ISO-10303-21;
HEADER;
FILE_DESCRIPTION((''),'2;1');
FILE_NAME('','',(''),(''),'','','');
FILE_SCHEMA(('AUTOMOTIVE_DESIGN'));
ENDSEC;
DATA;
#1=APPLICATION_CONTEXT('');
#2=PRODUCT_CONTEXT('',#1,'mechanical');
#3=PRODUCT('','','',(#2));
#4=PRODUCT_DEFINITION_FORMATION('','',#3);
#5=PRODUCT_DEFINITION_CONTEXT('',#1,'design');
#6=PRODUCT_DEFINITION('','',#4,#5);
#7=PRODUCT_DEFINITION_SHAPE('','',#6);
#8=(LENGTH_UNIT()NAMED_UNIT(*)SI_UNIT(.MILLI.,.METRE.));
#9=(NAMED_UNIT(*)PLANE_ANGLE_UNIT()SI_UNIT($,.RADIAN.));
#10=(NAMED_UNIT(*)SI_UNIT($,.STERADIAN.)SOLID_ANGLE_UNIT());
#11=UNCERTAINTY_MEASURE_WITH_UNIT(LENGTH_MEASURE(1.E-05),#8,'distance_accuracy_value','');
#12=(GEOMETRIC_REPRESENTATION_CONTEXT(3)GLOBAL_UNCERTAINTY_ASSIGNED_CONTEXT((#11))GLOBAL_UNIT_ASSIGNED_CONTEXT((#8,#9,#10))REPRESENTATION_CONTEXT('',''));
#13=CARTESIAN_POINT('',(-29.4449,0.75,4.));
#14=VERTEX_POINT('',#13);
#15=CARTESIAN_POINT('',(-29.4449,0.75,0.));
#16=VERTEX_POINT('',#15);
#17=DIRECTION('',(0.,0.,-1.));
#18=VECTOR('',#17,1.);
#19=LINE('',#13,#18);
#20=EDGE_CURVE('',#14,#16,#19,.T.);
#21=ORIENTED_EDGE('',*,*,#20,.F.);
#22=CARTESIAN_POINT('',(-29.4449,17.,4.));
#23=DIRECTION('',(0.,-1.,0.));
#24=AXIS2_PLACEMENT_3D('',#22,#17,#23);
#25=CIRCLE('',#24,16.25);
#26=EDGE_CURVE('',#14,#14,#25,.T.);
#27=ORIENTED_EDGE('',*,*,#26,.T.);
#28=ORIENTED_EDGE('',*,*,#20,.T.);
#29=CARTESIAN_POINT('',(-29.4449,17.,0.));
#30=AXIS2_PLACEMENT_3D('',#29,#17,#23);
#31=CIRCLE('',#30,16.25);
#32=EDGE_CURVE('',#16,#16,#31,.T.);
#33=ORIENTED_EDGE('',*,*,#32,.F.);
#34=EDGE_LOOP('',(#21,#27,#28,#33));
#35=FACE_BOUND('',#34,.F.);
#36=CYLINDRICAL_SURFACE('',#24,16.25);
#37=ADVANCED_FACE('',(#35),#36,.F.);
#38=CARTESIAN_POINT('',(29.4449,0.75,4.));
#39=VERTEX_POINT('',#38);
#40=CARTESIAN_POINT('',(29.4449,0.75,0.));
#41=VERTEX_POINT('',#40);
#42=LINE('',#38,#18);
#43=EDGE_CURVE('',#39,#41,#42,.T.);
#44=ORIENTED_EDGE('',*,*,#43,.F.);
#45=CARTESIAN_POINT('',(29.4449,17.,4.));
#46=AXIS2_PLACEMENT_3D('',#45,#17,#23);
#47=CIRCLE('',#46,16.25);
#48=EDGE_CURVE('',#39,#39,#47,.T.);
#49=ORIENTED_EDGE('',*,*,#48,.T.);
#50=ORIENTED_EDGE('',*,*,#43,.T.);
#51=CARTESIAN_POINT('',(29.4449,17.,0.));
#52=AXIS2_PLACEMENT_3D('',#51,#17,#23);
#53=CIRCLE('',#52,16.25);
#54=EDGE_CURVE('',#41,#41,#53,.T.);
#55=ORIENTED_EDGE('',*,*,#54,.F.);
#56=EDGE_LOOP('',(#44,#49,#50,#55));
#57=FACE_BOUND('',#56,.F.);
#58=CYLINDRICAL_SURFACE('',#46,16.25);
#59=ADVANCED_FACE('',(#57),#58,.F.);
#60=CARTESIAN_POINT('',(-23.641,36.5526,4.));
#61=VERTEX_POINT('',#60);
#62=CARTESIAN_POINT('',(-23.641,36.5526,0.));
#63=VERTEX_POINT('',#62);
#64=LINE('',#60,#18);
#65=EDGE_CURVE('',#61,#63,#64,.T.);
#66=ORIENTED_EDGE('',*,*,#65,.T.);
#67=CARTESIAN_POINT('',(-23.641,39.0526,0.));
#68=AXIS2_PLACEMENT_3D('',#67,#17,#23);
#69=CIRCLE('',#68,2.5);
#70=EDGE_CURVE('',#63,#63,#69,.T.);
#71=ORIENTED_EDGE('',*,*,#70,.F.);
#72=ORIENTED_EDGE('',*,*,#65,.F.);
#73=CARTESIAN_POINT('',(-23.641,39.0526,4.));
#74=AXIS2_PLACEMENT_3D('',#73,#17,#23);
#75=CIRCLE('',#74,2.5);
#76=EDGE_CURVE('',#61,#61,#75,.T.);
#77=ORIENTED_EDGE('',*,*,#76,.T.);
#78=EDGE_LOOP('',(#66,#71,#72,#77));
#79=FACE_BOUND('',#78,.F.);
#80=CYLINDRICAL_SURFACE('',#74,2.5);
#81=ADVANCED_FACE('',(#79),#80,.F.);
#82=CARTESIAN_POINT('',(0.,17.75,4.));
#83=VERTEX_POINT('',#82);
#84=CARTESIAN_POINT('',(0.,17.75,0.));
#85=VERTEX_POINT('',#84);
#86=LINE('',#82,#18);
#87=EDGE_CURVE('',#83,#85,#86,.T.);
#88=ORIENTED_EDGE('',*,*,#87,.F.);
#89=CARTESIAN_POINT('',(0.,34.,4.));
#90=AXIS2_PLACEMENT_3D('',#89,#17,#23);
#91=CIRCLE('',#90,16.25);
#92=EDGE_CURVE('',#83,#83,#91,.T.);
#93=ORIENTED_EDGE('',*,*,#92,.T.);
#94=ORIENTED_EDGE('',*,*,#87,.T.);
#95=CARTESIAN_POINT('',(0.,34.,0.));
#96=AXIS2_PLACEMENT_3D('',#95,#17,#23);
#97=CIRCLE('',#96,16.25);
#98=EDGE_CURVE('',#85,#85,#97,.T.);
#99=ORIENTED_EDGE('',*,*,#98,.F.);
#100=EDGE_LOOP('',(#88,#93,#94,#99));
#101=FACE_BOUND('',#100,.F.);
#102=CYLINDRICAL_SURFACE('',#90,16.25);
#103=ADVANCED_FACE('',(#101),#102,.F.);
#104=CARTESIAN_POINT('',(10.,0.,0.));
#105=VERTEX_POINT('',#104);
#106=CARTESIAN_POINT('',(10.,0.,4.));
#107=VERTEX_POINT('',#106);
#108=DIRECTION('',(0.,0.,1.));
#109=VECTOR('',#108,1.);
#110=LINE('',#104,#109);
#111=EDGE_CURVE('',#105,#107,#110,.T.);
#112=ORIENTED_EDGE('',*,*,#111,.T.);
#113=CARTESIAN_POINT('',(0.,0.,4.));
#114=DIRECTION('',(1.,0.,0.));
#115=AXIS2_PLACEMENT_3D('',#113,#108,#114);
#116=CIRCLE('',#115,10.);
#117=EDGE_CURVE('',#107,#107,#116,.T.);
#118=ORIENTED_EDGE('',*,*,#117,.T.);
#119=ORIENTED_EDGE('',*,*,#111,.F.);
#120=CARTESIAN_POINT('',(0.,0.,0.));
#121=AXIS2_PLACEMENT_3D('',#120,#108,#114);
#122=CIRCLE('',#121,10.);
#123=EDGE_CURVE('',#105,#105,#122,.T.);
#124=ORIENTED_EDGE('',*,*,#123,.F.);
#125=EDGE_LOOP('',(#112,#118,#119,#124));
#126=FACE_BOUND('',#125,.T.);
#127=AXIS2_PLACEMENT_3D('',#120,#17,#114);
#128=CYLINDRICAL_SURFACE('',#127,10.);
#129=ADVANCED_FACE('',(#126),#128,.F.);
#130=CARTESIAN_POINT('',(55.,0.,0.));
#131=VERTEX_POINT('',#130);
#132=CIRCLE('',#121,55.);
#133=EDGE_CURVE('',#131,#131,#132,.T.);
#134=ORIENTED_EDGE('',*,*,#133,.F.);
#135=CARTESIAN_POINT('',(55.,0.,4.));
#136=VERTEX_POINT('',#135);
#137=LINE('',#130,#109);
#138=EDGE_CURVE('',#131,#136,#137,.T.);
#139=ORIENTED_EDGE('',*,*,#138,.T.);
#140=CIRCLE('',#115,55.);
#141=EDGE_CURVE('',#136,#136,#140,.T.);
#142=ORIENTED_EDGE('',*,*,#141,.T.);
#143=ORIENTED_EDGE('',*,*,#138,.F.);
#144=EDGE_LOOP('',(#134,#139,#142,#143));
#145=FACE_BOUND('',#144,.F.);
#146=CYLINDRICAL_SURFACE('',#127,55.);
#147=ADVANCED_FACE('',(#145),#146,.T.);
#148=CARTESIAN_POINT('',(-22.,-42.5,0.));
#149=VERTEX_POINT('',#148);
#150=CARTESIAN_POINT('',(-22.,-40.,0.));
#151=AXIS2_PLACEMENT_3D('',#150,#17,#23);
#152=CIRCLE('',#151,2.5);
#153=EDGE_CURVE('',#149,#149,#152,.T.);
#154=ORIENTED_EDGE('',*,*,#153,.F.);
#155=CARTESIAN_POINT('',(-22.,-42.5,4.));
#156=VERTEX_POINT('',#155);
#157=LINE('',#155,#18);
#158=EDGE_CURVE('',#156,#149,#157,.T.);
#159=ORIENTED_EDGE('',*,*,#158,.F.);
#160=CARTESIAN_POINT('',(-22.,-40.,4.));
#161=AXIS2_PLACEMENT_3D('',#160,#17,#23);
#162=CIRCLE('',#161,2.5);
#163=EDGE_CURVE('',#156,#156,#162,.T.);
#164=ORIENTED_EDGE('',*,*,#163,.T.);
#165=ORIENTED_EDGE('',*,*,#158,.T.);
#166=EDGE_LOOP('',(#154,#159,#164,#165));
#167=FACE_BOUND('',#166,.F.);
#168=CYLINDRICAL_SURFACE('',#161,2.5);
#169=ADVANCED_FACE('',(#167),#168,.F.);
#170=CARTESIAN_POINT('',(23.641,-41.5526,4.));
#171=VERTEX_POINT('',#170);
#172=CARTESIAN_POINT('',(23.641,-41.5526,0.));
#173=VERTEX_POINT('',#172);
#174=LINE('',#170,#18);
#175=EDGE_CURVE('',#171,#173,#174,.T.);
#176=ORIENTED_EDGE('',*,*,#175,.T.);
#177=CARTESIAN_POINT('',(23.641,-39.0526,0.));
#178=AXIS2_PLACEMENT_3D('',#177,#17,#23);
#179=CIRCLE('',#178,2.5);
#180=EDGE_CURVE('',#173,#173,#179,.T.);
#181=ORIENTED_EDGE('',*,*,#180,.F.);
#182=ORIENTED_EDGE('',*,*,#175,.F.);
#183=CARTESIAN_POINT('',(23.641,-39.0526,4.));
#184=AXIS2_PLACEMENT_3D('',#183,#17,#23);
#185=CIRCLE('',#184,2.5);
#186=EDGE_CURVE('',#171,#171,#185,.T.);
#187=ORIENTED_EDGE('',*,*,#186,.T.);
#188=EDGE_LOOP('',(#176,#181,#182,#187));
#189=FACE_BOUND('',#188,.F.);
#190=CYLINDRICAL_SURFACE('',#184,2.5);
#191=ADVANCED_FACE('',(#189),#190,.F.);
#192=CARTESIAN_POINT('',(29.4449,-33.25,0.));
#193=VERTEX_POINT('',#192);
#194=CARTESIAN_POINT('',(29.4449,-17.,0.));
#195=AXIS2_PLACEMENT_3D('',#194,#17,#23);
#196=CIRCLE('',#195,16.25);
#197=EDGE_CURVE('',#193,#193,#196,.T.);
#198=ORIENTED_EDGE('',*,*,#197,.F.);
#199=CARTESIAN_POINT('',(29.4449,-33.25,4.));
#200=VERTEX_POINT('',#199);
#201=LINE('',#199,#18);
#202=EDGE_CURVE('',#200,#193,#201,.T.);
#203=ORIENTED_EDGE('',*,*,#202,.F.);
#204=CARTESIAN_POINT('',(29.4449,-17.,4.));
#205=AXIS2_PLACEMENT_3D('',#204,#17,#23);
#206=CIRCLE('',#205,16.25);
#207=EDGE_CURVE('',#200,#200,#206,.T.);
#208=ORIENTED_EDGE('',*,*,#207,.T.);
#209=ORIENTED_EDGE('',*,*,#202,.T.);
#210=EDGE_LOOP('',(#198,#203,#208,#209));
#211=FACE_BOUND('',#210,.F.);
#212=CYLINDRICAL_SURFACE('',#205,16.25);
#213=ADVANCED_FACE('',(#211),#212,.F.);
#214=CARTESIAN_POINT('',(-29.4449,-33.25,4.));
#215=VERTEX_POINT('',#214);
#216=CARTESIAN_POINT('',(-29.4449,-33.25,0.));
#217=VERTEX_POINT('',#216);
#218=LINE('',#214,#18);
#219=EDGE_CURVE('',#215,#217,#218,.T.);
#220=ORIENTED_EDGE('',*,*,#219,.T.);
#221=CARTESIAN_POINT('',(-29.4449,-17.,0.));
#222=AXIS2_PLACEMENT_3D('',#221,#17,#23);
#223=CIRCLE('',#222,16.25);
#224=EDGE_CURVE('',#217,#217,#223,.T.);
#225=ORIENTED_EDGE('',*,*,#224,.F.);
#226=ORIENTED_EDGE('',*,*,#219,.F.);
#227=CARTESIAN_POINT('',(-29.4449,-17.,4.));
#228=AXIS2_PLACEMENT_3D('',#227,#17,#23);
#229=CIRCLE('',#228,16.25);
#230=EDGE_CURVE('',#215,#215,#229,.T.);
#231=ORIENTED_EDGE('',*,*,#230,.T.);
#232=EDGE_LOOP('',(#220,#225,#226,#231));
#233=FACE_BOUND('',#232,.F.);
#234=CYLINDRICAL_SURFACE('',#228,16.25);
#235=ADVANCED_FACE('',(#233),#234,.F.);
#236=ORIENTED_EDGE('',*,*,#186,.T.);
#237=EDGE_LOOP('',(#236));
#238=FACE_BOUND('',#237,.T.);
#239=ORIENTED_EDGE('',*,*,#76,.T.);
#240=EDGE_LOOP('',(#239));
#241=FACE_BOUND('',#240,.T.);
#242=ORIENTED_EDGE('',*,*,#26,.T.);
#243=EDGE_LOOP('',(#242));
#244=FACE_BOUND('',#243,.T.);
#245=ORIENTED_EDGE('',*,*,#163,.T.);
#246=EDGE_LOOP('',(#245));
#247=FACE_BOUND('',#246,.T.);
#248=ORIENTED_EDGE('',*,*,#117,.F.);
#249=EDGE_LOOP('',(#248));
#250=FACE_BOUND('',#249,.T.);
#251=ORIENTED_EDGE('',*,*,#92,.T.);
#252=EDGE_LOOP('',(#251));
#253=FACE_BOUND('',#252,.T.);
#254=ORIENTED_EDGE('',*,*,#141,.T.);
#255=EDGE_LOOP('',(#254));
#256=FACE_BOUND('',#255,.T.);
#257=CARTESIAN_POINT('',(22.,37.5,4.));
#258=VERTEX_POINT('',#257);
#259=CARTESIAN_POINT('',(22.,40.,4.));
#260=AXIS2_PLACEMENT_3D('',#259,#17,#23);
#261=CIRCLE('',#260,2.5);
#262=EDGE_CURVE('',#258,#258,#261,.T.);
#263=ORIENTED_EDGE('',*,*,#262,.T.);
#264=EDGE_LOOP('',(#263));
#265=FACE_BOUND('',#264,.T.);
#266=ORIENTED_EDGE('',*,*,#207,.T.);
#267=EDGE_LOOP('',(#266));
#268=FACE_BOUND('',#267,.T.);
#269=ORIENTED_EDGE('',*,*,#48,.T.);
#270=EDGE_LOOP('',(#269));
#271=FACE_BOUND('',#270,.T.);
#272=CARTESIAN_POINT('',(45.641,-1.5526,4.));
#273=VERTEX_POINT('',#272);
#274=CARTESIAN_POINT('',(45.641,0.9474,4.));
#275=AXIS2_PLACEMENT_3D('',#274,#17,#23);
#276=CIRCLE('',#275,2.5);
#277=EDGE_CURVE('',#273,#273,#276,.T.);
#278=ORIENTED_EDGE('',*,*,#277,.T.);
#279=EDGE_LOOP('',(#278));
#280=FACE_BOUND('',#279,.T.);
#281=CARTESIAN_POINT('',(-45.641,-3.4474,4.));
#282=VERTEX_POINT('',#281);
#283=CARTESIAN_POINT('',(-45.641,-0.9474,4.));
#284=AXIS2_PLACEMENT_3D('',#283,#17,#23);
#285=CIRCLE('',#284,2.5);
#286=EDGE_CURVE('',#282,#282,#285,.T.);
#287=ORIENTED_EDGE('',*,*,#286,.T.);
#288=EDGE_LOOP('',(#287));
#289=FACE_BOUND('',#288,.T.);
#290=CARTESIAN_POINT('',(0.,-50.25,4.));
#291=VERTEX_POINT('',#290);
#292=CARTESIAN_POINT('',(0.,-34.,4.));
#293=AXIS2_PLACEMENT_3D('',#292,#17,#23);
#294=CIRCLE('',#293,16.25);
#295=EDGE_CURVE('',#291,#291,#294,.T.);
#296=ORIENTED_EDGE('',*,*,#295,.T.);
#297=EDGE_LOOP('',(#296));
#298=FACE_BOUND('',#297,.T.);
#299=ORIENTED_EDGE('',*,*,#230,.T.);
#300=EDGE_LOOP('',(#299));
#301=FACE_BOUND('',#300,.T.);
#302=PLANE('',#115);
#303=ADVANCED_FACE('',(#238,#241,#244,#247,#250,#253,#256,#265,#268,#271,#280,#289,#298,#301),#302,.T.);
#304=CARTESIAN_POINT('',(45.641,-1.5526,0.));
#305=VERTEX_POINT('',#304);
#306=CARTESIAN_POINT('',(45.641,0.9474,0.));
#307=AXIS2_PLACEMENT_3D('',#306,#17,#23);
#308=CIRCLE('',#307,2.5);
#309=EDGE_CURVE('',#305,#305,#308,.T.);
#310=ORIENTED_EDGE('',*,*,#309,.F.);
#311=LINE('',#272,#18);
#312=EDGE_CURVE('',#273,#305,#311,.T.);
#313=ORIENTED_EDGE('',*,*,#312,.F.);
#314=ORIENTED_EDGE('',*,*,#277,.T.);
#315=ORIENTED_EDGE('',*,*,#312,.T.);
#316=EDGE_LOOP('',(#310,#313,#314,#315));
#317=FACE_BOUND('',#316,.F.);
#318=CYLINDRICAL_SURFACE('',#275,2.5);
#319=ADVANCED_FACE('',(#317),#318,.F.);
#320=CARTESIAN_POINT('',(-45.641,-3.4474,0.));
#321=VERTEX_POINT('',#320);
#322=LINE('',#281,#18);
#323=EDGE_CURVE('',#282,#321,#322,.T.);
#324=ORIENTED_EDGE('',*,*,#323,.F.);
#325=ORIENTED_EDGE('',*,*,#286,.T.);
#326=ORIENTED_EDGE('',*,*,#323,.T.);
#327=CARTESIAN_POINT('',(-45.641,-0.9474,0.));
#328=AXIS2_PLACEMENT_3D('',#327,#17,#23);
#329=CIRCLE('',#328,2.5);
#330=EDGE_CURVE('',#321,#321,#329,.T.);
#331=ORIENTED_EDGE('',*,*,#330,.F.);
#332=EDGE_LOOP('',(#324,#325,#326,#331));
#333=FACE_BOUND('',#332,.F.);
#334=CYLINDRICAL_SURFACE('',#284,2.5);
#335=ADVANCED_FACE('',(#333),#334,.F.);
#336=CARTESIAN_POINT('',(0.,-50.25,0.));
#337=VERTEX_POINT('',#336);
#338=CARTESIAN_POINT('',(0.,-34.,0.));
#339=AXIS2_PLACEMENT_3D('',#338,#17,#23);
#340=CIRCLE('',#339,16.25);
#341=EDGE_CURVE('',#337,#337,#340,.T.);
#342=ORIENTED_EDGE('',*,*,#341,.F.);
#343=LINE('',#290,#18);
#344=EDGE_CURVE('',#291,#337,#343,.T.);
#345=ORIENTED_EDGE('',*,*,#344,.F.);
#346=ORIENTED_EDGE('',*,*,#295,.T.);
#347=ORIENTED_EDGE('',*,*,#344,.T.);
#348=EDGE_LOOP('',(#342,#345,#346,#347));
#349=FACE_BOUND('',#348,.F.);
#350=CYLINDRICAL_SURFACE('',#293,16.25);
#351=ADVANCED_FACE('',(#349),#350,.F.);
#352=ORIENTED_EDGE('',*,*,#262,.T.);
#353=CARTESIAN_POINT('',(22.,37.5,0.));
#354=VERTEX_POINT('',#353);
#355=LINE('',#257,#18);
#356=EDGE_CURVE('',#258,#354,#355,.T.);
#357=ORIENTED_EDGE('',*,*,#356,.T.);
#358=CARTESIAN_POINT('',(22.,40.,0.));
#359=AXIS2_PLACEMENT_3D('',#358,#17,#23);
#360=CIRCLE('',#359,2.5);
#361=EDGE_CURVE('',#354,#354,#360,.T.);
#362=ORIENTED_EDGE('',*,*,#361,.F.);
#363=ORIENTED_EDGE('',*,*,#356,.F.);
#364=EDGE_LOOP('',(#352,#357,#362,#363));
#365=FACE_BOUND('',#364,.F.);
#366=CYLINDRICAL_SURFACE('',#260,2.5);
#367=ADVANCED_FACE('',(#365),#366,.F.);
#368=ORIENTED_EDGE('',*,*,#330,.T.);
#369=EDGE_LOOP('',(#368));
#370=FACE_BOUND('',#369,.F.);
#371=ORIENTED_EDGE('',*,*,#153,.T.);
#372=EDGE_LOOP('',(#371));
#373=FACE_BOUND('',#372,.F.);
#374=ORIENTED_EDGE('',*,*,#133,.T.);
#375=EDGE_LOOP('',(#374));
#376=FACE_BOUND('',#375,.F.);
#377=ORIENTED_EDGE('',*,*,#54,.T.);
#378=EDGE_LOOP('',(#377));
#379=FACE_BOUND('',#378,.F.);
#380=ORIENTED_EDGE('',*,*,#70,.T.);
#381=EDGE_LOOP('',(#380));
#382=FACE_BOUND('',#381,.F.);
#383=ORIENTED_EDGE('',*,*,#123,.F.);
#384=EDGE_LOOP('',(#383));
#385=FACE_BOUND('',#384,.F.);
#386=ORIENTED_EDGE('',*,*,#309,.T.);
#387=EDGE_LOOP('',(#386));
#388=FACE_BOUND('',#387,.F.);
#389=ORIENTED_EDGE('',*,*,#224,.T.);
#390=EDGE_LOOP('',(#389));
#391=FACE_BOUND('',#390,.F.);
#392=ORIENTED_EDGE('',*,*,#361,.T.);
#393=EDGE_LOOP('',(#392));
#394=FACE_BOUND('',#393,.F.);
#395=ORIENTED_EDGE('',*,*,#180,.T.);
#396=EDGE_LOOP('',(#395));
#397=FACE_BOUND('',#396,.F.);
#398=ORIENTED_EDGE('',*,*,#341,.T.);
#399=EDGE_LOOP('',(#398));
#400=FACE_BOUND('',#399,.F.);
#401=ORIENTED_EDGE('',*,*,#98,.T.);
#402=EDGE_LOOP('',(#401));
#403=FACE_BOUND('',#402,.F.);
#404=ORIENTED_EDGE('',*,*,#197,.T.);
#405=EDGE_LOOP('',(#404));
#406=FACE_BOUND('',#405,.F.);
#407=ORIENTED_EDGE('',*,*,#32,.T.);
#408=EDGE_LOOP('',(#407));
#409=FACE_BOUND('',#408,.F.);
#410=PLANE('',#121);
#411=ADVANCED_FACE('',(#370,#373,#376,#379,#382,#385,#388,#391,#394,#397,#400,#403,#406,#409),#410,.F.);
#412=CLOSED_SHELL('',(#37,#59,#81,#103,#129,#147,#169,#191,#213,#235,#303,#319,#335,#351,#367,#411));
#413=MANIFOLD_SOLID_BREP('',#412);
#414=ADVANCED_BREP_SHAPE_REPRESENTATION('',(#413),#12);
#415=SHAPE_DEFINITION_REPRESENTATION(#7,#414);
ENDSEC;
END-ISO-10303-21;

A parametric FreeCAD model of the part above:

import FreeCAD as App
import Part
import Sketcher
Q = App.Units.Quantity

doc = App.newDocument("Part")
body = doc.addObject("PartDesign::Body", "Body")

# Sketch on XY plane
sketch1 = body.newObject("Sketcher::SketchObject", "Sketch")
sketch1.AttachmentSupport = (doc.getObject("XY_Plane"), [""])
sketch1.MapMode = "FlatFace"
sketch1.addGeometry([
    Part.Circle(App.Vector(0, 0, 0), App.Vector(0, 0, 1), 55),
    Part.Circle(App.Vector(0, 0, 0), App.Vector(0, 0, 1), 10),
], False)
sketch1.addConstraint([
    Sketcher.Constraint("Coincident", 0, 3, -1, 1),
    Sketcher.Constraint("Coincident", 1, 3, -1, 1),
    Sketcher.Constraint("Diameter", 0, Q("110 mm")),
    Sketcher.Constraint("Diameter", 1, Q("20 mm")),
])
pad1 = body.newObject("PartDesign::Pad", "Pad")
pad1.Profile = sketch1
pad1.Length = 4

# Sketch on XY plane
sketch2 = body.newObject("Sketcher::SketchObject", "Sketch001")
sketch2.AttachmentSupport = (doc.getObject("XY_Plane"), [""])
sketch2.MapMode = "FlatFace"
sketch2.AttachmentOffset = App.Placement(App.Vector(0, 0, 4), App.Rotation())
sketch2.addGeometry([
    Part.Circle(App.Vector(0, 34, 0), App.Vector(0, 0, 1), 16),  # 0
    Part.Circle(App.Vector(-29, 17, 0), App.Vector(0, 0, 1), 16),  # 1
    Part.Circle(App.Vector(-29, -17, 0), App.Vector(0, 0, 1), 16),  # 2
    Part.Circle(App.Vector(0, -34, 0), App.Vector(0, 0, 1), 16),  # 3
    Part.Circle(App.Vector(29, -17, 0), App.Vector(0, 0, 1), 16),  # 4
    Part.Circle(App.Vector(29, 17, 0), App.Vector(0, 0, 1), 16),  # 5
], False)
sketch2.addConstraint([
    Sketcher.Constraint("Equal", 0, 1),
    Sketcher.Constraint("Equal", 1, 2),
    Sketcher.Constraint("Equal", 2, 3),
    Sketcher.Constraint("Equal", 3, 4),
    Sketcher.Constraint("Equal", 4, 5),
    Sketcher.Constraint("Symmetric", 0, 3, 3, 3, -1, 1),
    Sketcher.Constraint("Symmetric", 1, 3, 4, 3, -1, 1),
    Sketcher.Constraint("Symmetric", 2, 3, 5, 3, -1, 1),
    Sketcher.Constraint("Symmetric", 2, 3, 4, 3, -2),
    Sketcher.Constraint("PointOnObject", 0, 3, -2),
    Sketcher.Constraint("Diameter", 0, Q("32.5 mm")),
    Sketcher.Constraint("DistanceY", -1, 1, 0, 3, Q("34 mm")),
    Sketcher.Constraint("DistanceY", -1, 1, 1, 3, Q("17 mm")),
    Sketcher.Constraint("DistanceX", 1, 3, -1, 1, Q("29.445 mm")),
])
doc.recompute()
hole = body.newObject("PartDesign::Hole", "Hole")
hole.Profile = sketch2
hole.ThreadType = "None"
hole.Diameter = 32.5
hole.DepthType = "ThroughAll"

# Sketch on XY plane
sketch3 = body.newObject("Sketcher::SketchObject", "Sketch002")
sketch3.AttachmentSupport = (doc.getObject("XY_Plane"), [""])
sketch3.MapMode = "FlatFace"
sketch3.AttachmentOffset = App.Placement(App.Vector(0, 0, 4), App.Rotation())
sketch3.addGeometry([
    Part.Circle(App.Vector(22, 40, 0), App.Vector(0, 0, 1), 2.5),  # 0
    Part.Circle(App.Vector(-23.6, 39.1, 0), App.Vector(0, 0, 1), 2.5),  # 1
    Part.Circle(App.Vector(-45.6, -0.9, 0), App.Vector(0, 0, 1), 2.5),  # 2
    Part.Circle(App.Vector(-22, -40, 0), App.Vector(0, 0, 1), 2.5),  # 3
    Part.Circle(App.Vector(23.6, -39.1, 0), App.Vector(0, 0, 1), 2.5),  # 4
    Part.Circle(App.Vector(45.6, 0.9, 0), App.Vector(0, 0, 1), 2.5),  # 5
], False)
sketch3.addConstraint([
    Sketcher.Constraint("Equal", 0, 1),
    Sketcher.Constraint("Equal", 1, 2),
    Sketcher.Constraint("Equal", 2, 3),
    Sketcher.Constraint("Equal", 3, 4),
    Sketcher.Constraint("Equal", 4, 5),
    Sketcher.Constraint("Symmetric", 0, 3, 3, 3, -1, 1),
    Sketcher.Constraint("Symmetric", 1, 3, 4, 3, -1, 1),
    Sketcher.Constraint("Symmetric", 2, 3, 5, 3, -1, 1),
    Sketcher.Constraint("Diameter", 0, Q("5 mm")),
    Sketcher.Constraint("DistanceX", -1, 1, 0, 3, Q("22 mm")),
    Sketcher.Constraint("DistanceY", -1, 1, 0, 3, Q("40 mm")),
    Sketcher.Constraint("DistanceX", 2, 3, 1, 3, Q("22 mm")),
    Sketcher.Constraint("DistanceY", 2, 3, 1, 3, Q("40 mm")),
    Sketcher.Constraint("DistanceX", 1, 3, -1, 1, Q("23.641 mm")),
    Sketcher.Constraint("DistanceY", -1, 1, 1, 3, Q("39.0526 mm")),
])
doc.recompute()
hole2 = body.newObject("PartDesign::Hole", "Hole001")
hole2.Profile = sketch3
hole2.ThreadType = "None"
hole2.Diameter = 5
hole2.DepthType = "ThroughAll"

doc.recompute()
